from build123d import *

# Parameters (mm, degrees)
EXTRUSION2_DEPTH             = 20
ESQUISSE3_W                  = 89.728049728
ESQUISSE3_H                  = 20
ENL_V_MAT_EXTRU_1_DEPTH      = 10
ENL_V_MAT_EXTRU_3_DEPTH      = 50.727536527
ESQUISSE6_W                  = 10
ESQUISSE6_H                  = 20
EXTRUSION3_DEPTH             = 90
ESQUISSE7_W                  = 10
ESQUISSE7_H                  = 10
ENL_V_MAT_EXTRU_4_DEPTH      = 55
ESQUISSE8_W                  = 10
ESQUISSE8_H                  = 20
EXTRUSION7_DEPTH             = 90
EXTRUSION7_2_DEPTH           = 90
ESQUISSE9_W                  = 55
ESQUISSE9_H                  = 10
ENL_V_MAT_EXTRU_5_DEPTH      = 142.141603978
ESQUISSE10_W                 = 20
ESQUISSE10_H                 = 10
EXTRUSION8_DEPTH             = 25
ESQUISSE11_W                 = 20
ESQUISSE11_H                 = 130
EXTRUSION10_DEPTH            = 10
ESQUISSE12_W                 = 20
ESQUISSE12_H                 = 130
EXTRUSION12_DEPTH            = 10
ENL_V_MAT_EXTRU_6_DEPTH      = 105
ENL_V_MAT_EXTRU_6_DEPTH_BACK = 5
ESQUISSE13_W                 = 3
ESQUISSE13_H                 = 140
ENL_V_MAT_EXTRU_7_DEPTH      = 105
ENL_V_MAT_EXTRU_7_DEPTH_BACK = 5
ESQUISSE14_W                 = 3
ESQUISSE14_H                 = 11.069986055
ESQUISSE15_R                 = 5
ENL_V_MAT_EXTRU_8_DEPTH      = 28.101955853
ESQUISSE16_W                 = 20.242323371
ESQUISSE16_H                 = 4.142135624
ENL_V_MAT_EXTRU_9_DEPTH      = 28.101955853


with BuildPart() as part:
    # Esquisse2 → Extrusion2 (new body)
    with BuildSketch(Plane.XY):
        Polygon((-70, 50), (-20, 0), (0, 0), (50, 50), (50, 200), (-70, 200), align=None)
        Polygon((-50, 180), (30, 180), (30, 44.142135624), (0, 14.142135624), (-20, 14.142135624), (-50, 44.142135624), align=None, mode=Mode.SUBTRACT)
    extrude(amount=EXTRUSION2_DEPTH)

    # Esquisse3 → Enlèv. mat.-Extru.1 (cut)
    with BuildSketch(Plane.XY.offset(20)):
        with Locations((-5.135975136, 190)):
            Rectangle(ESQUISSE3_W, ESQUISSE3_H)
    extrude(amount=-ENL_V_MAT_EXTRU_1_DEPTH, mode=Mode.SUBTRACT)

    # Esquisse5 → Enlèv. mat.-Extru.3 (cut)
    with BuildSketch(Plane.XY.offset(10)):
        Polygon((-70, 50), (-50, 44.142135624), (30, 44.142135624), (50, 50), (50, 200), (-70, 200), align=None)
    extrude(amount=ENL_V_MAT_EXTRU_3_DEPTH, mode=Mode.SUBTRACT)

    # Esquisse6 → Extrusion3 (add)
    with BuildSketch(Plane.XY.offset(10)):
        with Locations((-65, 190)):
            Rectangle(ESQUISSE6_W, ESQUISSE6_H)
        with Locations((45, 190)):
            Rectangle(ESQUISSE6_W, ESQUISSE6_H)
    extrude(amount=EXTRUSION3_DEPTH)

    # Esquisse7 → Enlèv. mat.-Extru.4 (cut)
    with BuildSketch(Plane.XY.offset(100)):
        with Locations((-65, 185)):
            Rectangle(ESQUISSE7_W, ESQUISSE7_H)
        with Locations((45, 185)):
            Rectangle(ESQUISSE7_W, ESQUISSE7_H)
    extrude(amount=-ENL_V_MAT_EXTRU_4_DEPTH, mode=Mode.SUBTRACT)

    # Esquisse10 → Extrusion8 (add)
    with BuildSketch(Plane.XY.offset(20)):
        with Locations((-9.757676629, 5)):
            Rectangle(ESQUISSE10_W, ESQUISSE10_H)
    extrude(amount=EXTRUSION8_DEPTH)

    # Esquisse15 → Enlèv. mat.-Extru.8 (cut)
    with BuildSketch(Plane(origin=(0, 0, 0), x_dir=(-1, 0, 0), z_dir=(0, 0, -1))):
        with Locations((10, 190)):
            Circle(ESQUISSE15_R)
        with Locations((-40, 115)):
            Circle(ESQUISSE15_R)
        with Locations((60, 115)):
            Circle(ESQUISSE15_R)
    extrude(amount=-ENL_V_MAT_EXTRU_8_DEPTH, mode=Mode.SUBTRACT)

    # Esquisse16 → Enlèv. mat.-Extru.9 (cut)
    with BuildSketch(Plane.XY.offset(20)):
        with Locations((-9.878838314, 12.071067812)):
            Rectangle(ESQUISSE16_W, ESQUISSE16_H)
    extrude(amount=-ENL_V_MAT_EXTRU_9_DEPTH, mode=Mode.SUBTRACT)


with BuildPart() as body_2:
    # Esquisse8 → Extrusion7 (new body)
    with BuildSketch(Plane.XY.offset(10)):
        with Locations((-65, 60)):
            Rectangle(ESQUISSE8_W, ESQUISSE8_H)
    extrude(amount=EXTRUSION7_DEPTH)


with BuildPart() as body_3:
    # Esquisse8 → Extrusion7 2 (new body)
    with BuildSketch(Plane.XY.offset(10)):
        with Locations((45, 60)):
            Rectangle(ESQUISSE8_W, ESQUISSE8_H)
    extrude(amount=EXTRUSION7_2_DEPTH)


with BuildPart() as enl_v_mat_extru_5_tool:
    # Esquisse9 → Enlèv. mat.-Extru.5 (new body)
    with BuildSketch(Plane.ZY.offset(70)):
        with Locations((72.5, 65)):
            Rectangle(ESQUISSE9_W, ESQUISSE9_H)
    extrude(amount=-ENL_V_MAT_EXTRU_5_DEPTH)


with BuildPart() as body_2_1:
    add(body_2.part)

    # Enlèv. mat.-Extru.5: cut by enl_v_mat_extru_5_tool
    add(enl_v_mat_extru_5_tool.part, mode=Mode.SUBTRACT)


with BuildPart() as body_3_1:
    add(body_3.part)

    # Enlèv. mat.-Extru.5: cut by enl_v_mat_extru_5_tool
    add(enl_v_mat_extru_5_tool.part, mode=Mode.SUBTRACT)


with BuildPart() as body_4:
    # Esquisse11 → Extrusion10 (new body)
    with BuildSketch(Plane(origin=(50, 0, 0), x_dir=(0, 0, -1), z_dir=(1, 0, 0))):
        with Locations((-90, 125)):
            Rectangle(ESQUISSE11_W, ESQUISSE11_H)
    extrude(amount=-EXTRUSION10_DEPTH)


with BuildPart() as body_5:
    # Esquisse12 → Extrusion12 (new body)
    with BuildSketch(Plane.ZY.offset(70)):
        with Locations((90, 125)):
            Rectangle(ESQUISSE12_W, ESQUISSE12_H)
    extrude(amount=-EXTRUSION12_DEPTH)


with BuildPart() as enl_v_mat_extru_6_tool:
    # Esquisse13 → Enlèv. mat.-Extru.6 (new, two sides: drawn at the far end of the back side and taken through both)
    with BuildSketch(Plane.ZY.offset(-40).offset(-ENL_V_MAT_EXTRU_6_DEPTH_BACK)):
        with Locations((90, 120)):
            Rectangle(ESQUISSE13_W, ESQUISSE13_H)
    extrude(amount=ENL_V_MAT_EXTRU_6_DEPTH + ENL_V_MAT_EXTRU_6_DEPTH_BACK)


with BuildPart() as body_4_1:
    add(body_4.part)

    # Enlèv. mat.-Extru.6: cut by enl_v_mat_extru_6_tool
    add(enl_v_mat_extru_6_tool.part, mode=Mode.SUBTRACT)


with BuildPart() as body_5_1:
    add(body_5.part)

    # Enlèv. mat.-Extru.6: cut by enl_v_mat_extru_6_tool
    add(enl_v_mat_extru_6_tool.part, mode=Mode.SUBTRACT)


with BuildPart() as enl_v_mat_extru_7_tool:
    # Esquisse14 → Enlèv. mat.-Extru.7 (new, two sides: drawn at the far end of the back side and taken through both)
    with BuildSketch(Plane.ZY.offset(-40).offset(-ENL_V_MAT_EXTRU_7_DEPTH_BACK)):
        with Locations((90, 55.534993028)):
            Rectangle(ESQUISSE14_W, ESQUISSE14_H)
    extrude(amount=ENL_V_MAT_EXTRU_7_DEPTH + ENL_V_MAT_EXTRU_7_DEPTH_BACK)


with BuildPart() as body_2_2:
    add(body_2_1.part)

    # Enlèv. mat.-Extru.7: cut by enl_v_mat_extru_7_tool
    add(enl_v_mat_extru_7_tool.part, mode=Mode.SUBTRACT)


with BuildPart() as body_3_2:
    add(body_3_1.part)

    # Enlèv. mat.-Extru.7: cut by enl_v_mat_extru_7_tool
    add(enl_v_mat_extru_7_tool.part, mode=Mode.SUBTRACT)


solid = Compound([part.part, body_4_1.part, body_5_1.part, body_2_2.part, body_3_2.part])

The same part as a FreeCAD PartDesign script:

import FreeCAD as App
import Part
import Sketcher

V = App.Vector
Q = App.Units.Quantity


def add_polygon(sketch, points):
    """Adds a closed chain of lines whose ends are joined by coincident constraints."""
    first, n = sketch.GeometryCount, len(points)
    for a, b in zip(points, points[1:] + points[:1]):
        sketch.addGeometry(Part.LineSegment(App.Vector(*a, 0), App.Vector(*b, 0)), False)
    for i in range(n):
        sketch.addConstraint(Sketcher.Constraint("Coincident", first + i, 2, first + (i + 1) % n, 1))

doc = App.newDocument("Part")
body = doc.addObject("PartDesign::Body", "Body")

sketch1 = body.newObject("Sketcher::SketchObject", "Sketch")
sketch1.AttachmentSupport = (doc.getObject("XY_Plane"), [""])
sketch1.MapMode = "FlatFace"
add_polygon(sketch1, [(-70, 50), (-20, 0), (0, 0), (50, 50), (50, 200), (-70, 200)])
add_polygon(sketch1, [(-50, 44.142136), (-50, 180), (30, 180), (30, 44.142136), (0, 14.142136), (-20, 14.142136)])
sketch1.addConstraint([
    Sketcher.Constraint("Horizontal", 1),
    Sketcher.Constraint("Vertical", 3),
    Sketcher.Constraint("Horizontal", 4),
    Sketcher.Constraint("Vertical", 5),
    Sketcher.Constraint("Vertical", 6),
    Sketcher.Constraint("Horizontal", 7),
    Sketcher.Constraint("Vertical", 8),
    Sketcher.Constraint("Horizontal", 10),
    Sketcher.Constraint("Coincident", 1, 2, -1, 1),
    Sketcher.Constraint("PointOnObject", 9, 2, -2),
    Sketcher.Constraint("Perpendicular", 0, 2),
    Sketcher.Constraint("Parallel", 2, 9),
    Sketcher.Constraint("Perpendicular", 9, 11),
    Sketcher.Constraint("Horizontal", 2, 2, 5, 2),
    Sketcher.Constraint("Horizontal", 8, 2, 11, 2),
    Sketcher.Constraint("Vertical", 0, 2, 10, 2),
    Sketcher.Constraint("Equal", 0, 2),
    Sketcher.Constraint("DistanceX", 1, 1, 1, 2, Q("20 mm")),
    Sketcher.Constraint("DistanceX", 4, 2, 4, 1, Q("120 mm")),
    Sketcher.Constraint("DistanceX", 7, 1, 7, 2, Q("80 mm")),
    Sketcher.Constraint("DistanceY", 3, 1, 3, 2, Q("150 mm")),
    Sketcher.Constraint("DistanceY", -1, 1, 6, 2, Q("180 mm")),
    Sketcher.Constraint("DistanceY", 6, 1, 6, 2, Q("135.857864 mm")),
])
pad1 = body.newObject("PartDesign::Pad", "Pad")
pad1.Profile = sketch1
pad1.Length = 20

sketch2 = body.newObject("Sketcher::SketchObject", "Sketch001")
sketch2.AttachmentSupport = (doc.getObject("XY_Plane"), [""])
sketch2.MapMode = "FlatFace"
sketch2.AttachmentOffset = App.Placement(V(0, 0, 20), App.Rotation())
add_polygon(sketch2, [(-50, 200), (-50, 180), (39.72805, 180), (39.72805, 200)])
sketch2.addConstraint([
    Sketcher.Constraint("Vertical", 0),
    Sketcher.Constraint("Horizontal", 1),
    Sketcher.Constraint("Vertical", 2),
    Sketcher.Constraint("Horizontal", 3),
    Sketcher.Constraint("DistanceY", 0, 2, 0, 1, Q("20 mm")),
    Sketcher.Constraint("DistanceX", 0, 2, -1, 1, Q("50 mm")),
    Sketcher.Constraint("DistanceY", -1, 1, 0, 2, Q("180 mm")),
    Sketcher.Constraint("DistanceX", 1, 1, 1, 2, Q("89.72805 mm")),
])
pocket1 = body.newObject("PartDesign::Pocket", "Pocket")
pocket1.Profile = sketch2
pocket1.Length = 10

sketch3 = body.newObject("Sketcher::SketchObject", "Sketch002")
sketch3.AttachmentSupport = (doc.getObject("XY_Plane"), [""])
sketch3.MapMode = "FlatFace"
sketch3.AttachmentOffset = App.Placement(V(0, 0, 10), App.Rotation())
add_polygon(sketch3, [(-70, 50), (-50, 44.142136), (30, 44.142136), (50, 50), (50, 200), (-70, 200)])
sketch3.addConstraint([
    Sketcher.Constraint("Horizontal", 1),
    Sketcher.Constraint("Vertical", 3),
    Sketcher.Constraint("Horizontal", 4),
    Sketcher.Constraint("Vertical", 5),
    Sketcher.Constraint("Horizontal", 2, 2, 5, 2),
    Sketcher.Constraint("Equal", 0, 2),
    Sketcher.Constraint("DistanceX", 1, 1, 1, 2, Q("80 mm")),
    Sketcher.Constraint("DistanceX", 4, 2, 4, 1, Q("120 mm")),
    Sketcher.Constraint("DistanceY", 3, 1, 3, 2, Q("150 mm")),
    Sketcher.Constraint("DistanceX", 0, 2, -1, 1, Q("50 mm")),
    Sketcher.Constraint("DistanceY", -1, 1, 2, 2, Q("50 mm")),
    Sketcher.Constraint("Distance", 0, Q("20.840215 mm")),
])
pocket2 = body.newObject("PartDesign::Pocket", "Pocket001")
pocket2.Profile = sketch3
pocket2.Length = 50.727537
pocket2.Reversed = True

sketch4 = body.newObject("Sketcher::SketchObject", "Sketch003")
sketch4.AttachmentSupport = (doc.getObject("XY_Plane"), [""])
sketch4.MapMode = "FlatFace"
sketch4.AttachmentOffset = App.Placement(V(0, 0, 10), App.Rotation())
add_polygon(sketch4, [(-70, 200), (-70, 180), (-60, 180), (-60, 200)])
add_polygon(sketch4, [(40, 200), (40, 180), (50, 180), (50, 200)])
sketch4.addConstraint([
    Sketcher.Constraint("Vertical", 0),
    Sketcher.Constraint("Horizontal", 1),
    Sketcher.Constraint("Vertical", 2),
    Sketcher.Constraint("Horizontal", 3),
    Sketcher.Constraint("Vertical", 4),
    Sketcher.Constraint("Horizontal", 5),
    Sketcher.Constraint("Vertical", 6),
    Sketcher.Constraint("Horizontal", 7),
    Sketcher.Constraint("Horizontal", 1, 2, 4, 2),
    Sketcher.Constraint("Horizontal", 3, 2, 6, 2),
    Sketcher.Constraint("Equal", 3, 5),
    Sketcher.Constraint("DistanceX", 1, 1, 1, 2, Q("10 mm")),
    Sketcher.Constraint("DistanceY", 0, 2, 0, 1, Q("20 mm")),
    Sketcher.Constraint("DistanceX", 0, 2, -1, 1, Q("70 mm")),
    Sketcher.Constraint("DistanceY", -1, 1, 0, 2, Q("180 mm")),
    Sketcher.Constraint("DistanceX", -1, 1, 4, 2, Q("40 mm")),
])
pad2 = body.newObject("PartDesign::Pad", "Pad001")
pad2.Profile = sketch4
pad2.Length = 90

sketch5 = body.newObject("Sketcher::SketchObject", "Sketch004")
sketch5.AttachmentSupport = (doc.getObject("XY_Plane"), [""])
sketch5.MapMode = "FlatFace"
sketch5.AttachmentOffset = App.Placement(V(0, 0, 100), App.Rotation())
add_polygon(sketch5, [(-70, 190), (-70, 180), (-60, 180), (-60, 190)])
add_polygon(sketch5, [(40, 190), (40, 180), (50, 180), (50, 190)])
sketch5.addConstraint([
    Sketcher.Constraint("Vertical", 0),
    Sketcher.Constraint("Horizontal", 1),
    Sketcher.Constraint("Vertical", 2),
    Sketcher.Constraint("Horizontal", 3),
    Sketcher.Constraint("Vertical", 4),
    Sketcher.Constraint("Horizontal", 5),
    Sketcher.Constraint("Vertical", 6),
    Sketcher.Constraint("Horizontal", 7),
    Sketcher.Constraint("Horizontal", 1, 2, 4, 2),
    Sketcher.Constraint("Horizontal", 3, 2, 6, 2),
    Sketcher.Constraint("Equal", 3, 5),
    Sketcher.Constraint("Equal", 7, 0),
    Sketcher.Constraint("DistanceX", 1, 1, 1, 2, Q("10 mm")),
    Sketcher.Constraint("DistanceX", 0, 2, -1, 1, Q("70 mm")),
    Sketcher.Constraint("DistanceY", -1, 1, 0, 2, Q("180 mm")),
    Sketcher.Constraint("DistanceX", -1, 1, 4, 2, Q("40 mm")),
])
pocket3 = body.newObject("PartDesign::Pocket", "Pocket002")
pocket3.Profile = sketch5
pocket3.Length = 55

sketch6 = body.newObject("Sketcher::SketchObject", "Sketch005")
sketch6.AttachmentSupport = (doc.getObject("XY_Plane"), [""])
sketch6.MapMode = "FlatFace"
sketch6.AttachmentOffset = App.Placement(V(0, 0, 20), App.Rotation())
add_polygon(sketch6, [(-19.757677, 10), (-19.757677, 0), (0.242323, 0), (0.242323, 10)])
sketch6.addConstraint([
    Sketcher.Constraint("Vertical", 0),
    Sketcher.Constraint("Horizontal", 1),
    Sketcher.Constraint("Vertical", 2),
    Sketcher.Constraint("Horizontal", 3),
    Sketcher.Constraint("PointOnObject", 0, 2, -1),
    Sketcher.Constraint("DistanceX", 1, 1, 1, 2, Q("20 mm")),
    Sketcher.Constraint("DistanceY", 0, 2, 0, 1, Q("10 mm")),
    Sketcher.Constraint("DistanceX", 0, 2, -1, 1, Q("19.757677 mm")),
])
pad3 = body.newObject("PartDesign::Pad", "Pad002")
pad3.Profile = sketch6
pad3.Length = 25

sketch7 = body.newObject("Sketcher::SketchObject", "Sketch006")
sketch7.AttachmentSupport = (doc.getObject("XY_Plane"), [""])
sketch7.MapMode = "FlatFace"
sketch7.addGeometry([
    Part.Circle(V(-10, 190, 0), V(0, 0, 1), 5),
    Part.Circle(V(40, 115, 0), V(0, 0, 1), 5),
    Part.Circle(V(-60, 115, 0), V(0, 0, 1), 5),
], False)
sketch7.addConstraint([
    Sketcher.Constraint("Equal", 0, 1),
    Sketcher.Constraint("Equal", 1, 2),
    Sketcher.Constraint("Horizontal", 1, 3, 2, 3),
    Sketcher.Constraint("Diameter", 0, Q("10 mm")),
    Sketcher.Constraint("DistanceX", 0, 3, -1, 1, Q("10 mm")),
    Sketcher.Constraint("DistanceY", -1, 1, 0, 3, Q("190 mm")),
    Sketcher.Constraint("DistanceX", -1, 1, 1, 3, Q("40 mm")),
    Sketcher.Constraint("DistanceY", -1, 1, 1, 3, Q("115 mm")),
    Sketcher.Constraint("DistanceX", 2, 3, -1, 1, Q("60 mm")),
])
pocket4 = body.newObject("PartDesign::Pocket", "Pocket003")
pocket4.Profile = sketch7
pocket4.Length = 28.101956
pocket4.Reversed = True

sketch8 = body.newObject("Sketcher::SketchObject", "Sketch007")
sketch8.AttachmentSupport = (doc.getObject("XY_Plane"), [""])
sketch8.MapMode = "FlatFace"
sketch8.AttachmentOffset = App.Placement(V(0, 0, 20), App.Rotation())
add_polygon(sketch8, [(-20, 14.142136), (-20, 10), (0.242323, 10), (0.242323, 14.142136)])
sketch8.addConstraint([
    Sketcher.Constraint("Vertical", 0),
    Sketcher.Constraint("Horizontal", 1),
    Sketcher.Constraint("Vertical", 2),
    Sketcher.Constraint("Horizontal", 3),
    Sketcher.Constraint("DistanceX", 0, 2, -1, 1, Q("20 mm")),
    Sketcher.Constraint("DistanceY", -1, 1, 0, 2, Q("10 mm")),
    Sketcher.Constraint("DistanceX", 1, 1, 1, 2, Q("20.242323 mm")),
    Sketcher.Constraint("DistanceY", 0, 2, 0, 1, Q("4.142136 mm")),
])
pocket5 = body.newObject("PartDesign::Pocket", "Pocket004")
pocket5.Profile = sketch8
pocket5.Length = 28.101956
body2 = doc.addObject("PartDesign::Body", "Body001")

sketch9 = body2.newObject("Sketcher::SketchObject", "Sketch008")
sketch9.AttachmentSupport = (doc.getObject("XY_Plane001"), [""])
sketch9.MapMode = "FlatFace"
sketch9.AttachmentOffset = App.Placement(V(0, 0, 10), App.Rotation())
add_polygon(sketch9, [(-70, 70), (-70, 50), (-60, 50), (-60, 70)])
sketch9.addConstraint([
    Sketcher.Constraint("Vertical", 0),
    Sketcher.Constraint("Horizontal", 1),
    Sketcher.Constraint("Vertical", 2),
    Sketcher.Constraint("Horizontal", 3),
    Sketcher.Constraint("DistanceX", 1, 1, 1, 2, Q("10 mm")),
    Sketcher.Constraint("DistanceY", 0, 2, 0, 1, Q("20 mm")),
    Sketcher.Constraint("DistanceX", 0, 2, -1, 1, Q("70 mm")),
    Sketcher.Constraint("DistanceY", -1, 1, 0, 2, Q("50 mm")),
])
pad4 = body2.newObject("PartDesign::Pad", "Pad003")
pad4.Profile = sketch9
pad4.Length = 90
body3 = doc.addObject("PartDesign::Body", "Body002")

sketch10 = body3.newObject("Sketcher::SketchObject", "Sketch009")
sketch10.AttachmentSupport = (doc.getObject("XY_Plane002"), [""])
sketch10.MapMode = "FlatFace"
sketch10.AttachmentOffset = App.Placement(V(0, 0, 10), App.Rotation())
add_polygon(sketch10, [(40, 70), (40, 50), (50, 50), (50, 70)])
sketch10.addConstraint([
    Sketcher.Constraint("Vertical", 0),
    Sketcher.Constraint("Horizontal", 1),
    Sketcher.Constraint("Vertical", 2),
    Sketcher.Constraint("Horizontal", 3),
    Sketcher.Constraint("DistanceX", 1, 1, 1, 2, Q("10 mm")),
    Sketcher.Constraint("DistanceY", 0, 2, 0, 1, Q("20 mm")),
    Sketcher.Constraint("DistanceX", -1, 1, 0, 2, Q("40 mm")),
    Sketcher.Constraint("DistanceY", -1, 1, 0, 2, Q("50 mm")),
])
pad5 = body3.newObject("PartDesign::Pad", "Pad004")
pad5.Profile = sketch10
pad5.Length = 90
body4 = doc.addObject("PartDesign::Body", "Body003")

sketch11 = body4.newObject("Sketcher::SketchObject", "Sketch010")
sketch11.AttachmentSupport = (doc.getObject("YZ_Plane003"), [""])
sketch11.MapMode = "FlatFace"
sketch11.AttachmentOffset = App.Placement(V(0, 0, -70), App.Rotation())
add_polygon(sketch11, [(70, 45), (60, 45), (60, 100), (70, 100)])
sketch11.addConstraint([
    Sketcher.Constraint("Horizontal", 0),
    Sketcher.Constraint("Vertical", 1),
    Sketcher.Constraint("Horizontal", 2),
    Sketcher.Constraint("Vertical", 3),
    Sketcher.Constraint("DistanceX", 0, 2, 0, 1, Q("10 mm")),
    Sketcher.Constraint("DistanceY", 1, 1, 1, 2, Q("55 mm")),
    Sketcher.Constraint("DistanceX", -1, 1, 0, 2, Q("60 mm")),
    Sketcher.Constraint("DistanceY", -1, 1, 0, 2, Q("45 mm")),
])
pad6 = body4.newObject("PartDesign::Pad", "Pad005")
pad6.Profile = sketch11
pad6.Length = 142.141604
doc.recompute()

body5 = doc.addObject("PartDesign::Body", "Body004")
body5.BaseFeature = body4
boolean = body2.newObject("PartDesign::Boolean", "Boolean")
boolean.Type = "Cut"
boolean.addObjects([body5])
doc.recompute()

boolean2 = body3.newObject("PartDesign::Boolean", "Boolean001")
boolean2.Type = "Cut"
boolean2.addObjects([body4])
body6 = doc.addObject("PartDesign::Body", "Body005")

sketch12 = body6.newObject("Sketcher::SketchObject", "Sketch011")
sketch12.AttachmentSupport = (doc.getObject("YZ_Plane005"), [""])
sketch12.MapMode = "FlatFace"
sketch12.AttachmentOffset = App.Placement(V(0, 0, 50), App.Rotation())
add_polygon(sketch12, [(190, 100), (60, 100), (60, 80), (190, 80)])
sketch12.addConstraint([
    Sketcher.Constraint("Horizontal", 0),
    Sketcher.Constraint("Vertical", 1),
    Sketcher.Constraint("Horizontal", 2),
    Sketcher.Constraint("Vertical", 3),
    Sketcher.Constraint("DistanceX", 0, 2, 0, 1, Q("130 mm")),
    Sketcher.Constraint("DistanceY", 1, 2, 1, 1, Q("20 mm")),
    Sketcher.Constraint("DistanceX", -1, 1, 0, 2, Q("60 mm")),
    Sketcher.Constraint("DistanceY", -1, 1, 0, 2, Q("100 mm")),
])
pad7 = body6.newObject("PartDesign::Pad", "Pad006")
pad7.Profile = sketch12
pad7.Length = 10
pad7.Reversed = True
body7 = doc.addObject("PartDesign::Body", "Body006")

sketch13 = body7.newObject("Sketcher::SketchObject", "Sketch012")
sketch13.AttachmentSupport = (doc.getObject("YZ_Plane006"), [""])
sketch13.MapMode = "FlatFace"
sketch13.AttachmentOffset = App.Placement(V(0, 0, -70), App.Rotation())
add_polygon(sketch13, [(190, 80), (60, 80), (60, 100), (190, 100)])
sketch13.addConstraint([
    Sketcher.Constraint("Horizontal", 0),
    Sketcher.Constraint("Vertical", 1),
    Sketcher.Constraint("Horizontal", 2),
    Sketcher.Constraint("Vertical", 3),
    Sketcher.Constraint("DistanceX", 0, 2, 0, 1, Q("130 mm")),
    Sketcher.Constraint("DistanceY", 1, 1, 1, 2, Q("20 mm")),
    Sketcher.Constraint("DistanceX", -1, 1, 0, 2, Q("60 mm")),
    Sketcher.Constraint("DistanceY", -1, 1, 0, 2, Q("80 mm")),
])
pad8 = body7.newObject("PartDesign::Pad", "Pad007")
pad8.Profile = sketch13
pad8.Length = 10
body8 = doc.addObject("PartDesign::Body", "Body007")

sketch14 = body8.newObject("Sketcher::SketchObject", "Sketch013")
sketch14.AttachmentSupport = (doc.getObject("YZ_Plane007"), [""])
sketch14.MapMode = "FlatFace"
sketch14.AttachmentOffset = App.Placement(V(0, 0, 40), App.Rotation())
add_polygon(sketch14, [(190, 88.5), (50, 88.5), (50, 91.5), (190, 91.5)])
sketch14.addConstraint([
    Sketcher.Constraint("Horizontal", 0),
    Sketcher.Constraint("Vertical", 1),
    Sketcher.Constraint("Horizontal", 2),
    Sketcher.Constraint("Vertical", 3),
    Sketcher.Constraint("DistanceX", 0, 2, 0, 1, Q("140 mm")),
    Sketcher.Constraint("DistanceY", 1, 1, 1, 2, Q("3 mm")),
    Sketcher.Constraint("DistanceX", -1, 1, 0, 2, Q("50 mm")),
    Sketcher.Constraint("DistanceY", -1, 1, 0, 2, Q("88.5 mm")),
])
pad9 = body8.newObject("PartDesign::Pad", "Pad008")
pad9.Profile = sketch14
pad9.Type = "TwoLengths"
pad9.Length = 105
pad9.Length2 = 5
pad9.Reversed = True
doc.recompute()

body9 = doc.addObject("PartDesign::Body", "Body008")
body9.BaseFeature = body8
boolean3 = body6.newObject("PartDesign::Boolean", "Boolean002")
boolean3.Type = "Cut"
boolean3.addObjects([body9])
doc.recompute()

boolean4 = body7.newObject("PartDesign::Boolean", "Boolean003")
boolean4.Type = "Cut"
boolean4.addObjects([body8])
body10 = doc.addObject("PartDesign::Body", "Body009")

sketch15 = body10.newObject("Sketcher::SketchObject", "Sketch014")
sketch15.AttachmentSupport = (doc.getObject("YZ_Plane009"), [""])
sketch15.MapMode = "FlatFace"
sketch15.AttachmentOffset = App.Placement(V(0, 0, 40), App.Rotation())
add_polygon(sketch15, [(61.069986, 88.5), (50, 88.5), (50, 91.5), (61.069986, 91.5)])
sketch15.addConstraint([
    Sketcher.Constraint("Horizontal", 0),
    Sketcher.Constraint("Vertical", 1),
    Sketcher.Constraint("Horizontal", 2),
    Sketcher.Constraint("Vertical", 3),
    Sketcher.Constraint("DistanceY", 1, 1, 1, 2, Q("3 mm")),
    Sketcher.Constraint("DistanceX", -1, 1, 0, 2, Q("50 mm")),
    Sketcher.Constraint("DistanceY", -1, 1, 0, 2, Q("88.5 mm")),
    Sketcher.Constraint("DistanceX", 0, 2, 0, 1, Q("11.069986 mm")),
])
pad10 = body10.newObject("PartDesign::Pad", "Pad009")
pad10.Profile = sketch15
pad10.Type = "TwoLengths"
pad10.Length = 105
pad10.Length2 = 5
pad10.Reversed = True
doc.recompute()

body11 = doc.addObject("PartDesign::Body", "Body010")
body11.BaseFeature = body10
boolean5 = body2.newObject("PartDesign::Boolean", "Boolean004")
boolean5.Type = "Cut"
boolean5.addObjects([body11])
doc.recompute()

boolean6 = body3.newObject("PartDesign::Boolean", "Boolean005")
boolean6.Type = "Cut"
boolean6.addObjects([body10])

doc.recompute()
